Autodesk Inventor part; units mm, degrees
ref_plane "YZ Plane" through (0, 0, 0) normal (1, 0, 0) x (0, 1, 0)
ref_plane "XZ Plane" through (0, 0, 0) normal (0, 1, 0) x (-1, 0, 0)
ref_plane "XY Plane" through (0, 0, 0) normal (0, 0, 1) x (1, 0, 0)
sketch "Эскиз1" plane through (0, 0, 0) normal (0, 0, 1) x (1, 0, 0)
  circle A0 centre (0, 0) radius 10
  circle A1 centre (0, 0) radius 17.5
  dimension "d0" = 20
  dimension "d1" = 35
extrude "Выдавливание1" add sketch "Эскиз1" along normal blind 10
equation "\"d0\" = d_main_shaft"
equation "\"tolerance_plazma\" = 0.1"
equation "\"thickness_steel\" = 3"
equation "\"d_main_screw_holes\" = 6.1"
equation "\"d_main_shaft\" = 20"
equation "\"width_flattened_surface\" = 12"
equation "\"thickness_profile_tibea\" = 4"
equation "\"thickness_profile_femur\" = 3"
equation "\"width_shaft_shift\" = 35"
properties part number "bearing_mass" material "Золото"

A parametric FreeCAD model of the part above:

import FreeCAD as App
import Part
import Sketcher
from FreeCAD import Vector
Q = App.Units.Quantity

doc = App.newDocument("Part")
body = doc.addObject("PartDesign::Body", "Body")

sketch1 = body.newObject("Sketcher::SketchObject", "Sketch")
sketch1.AttachmentSupport = (doc.getObject("XY_Plane"), [""])
sketch1.MapMode = "FlatFace"
sketch1.addGeometry(Part.Circle(Vector(0, 0, 0), Vector(0, 0, 1), 18), False)
sketch1.addGeometry(Part.Circle(Vector(0, 0, 0), Vector(0, 0, 1), 10), False)
sketch1.addConstraint(Sketcher.Constraint("Coincident", 0, 3, -1, 1))
sketch1.addConstraint(Sketcher.Constraint("Coincident", 1, 3, -1, 1))
sketch1.addConstraint(Sketcher.Constraint("Diameter", 0, Q("35 mm")))
sketch1.addConstraint(Sketcher.Constraint("Diameter", 1, Q("20 mm")))
pad1 = body.newObject("PartDesign::Pad", "Pad")
pad1.Profile = sketch1
pad1.Length = 10

doc.recompute()
